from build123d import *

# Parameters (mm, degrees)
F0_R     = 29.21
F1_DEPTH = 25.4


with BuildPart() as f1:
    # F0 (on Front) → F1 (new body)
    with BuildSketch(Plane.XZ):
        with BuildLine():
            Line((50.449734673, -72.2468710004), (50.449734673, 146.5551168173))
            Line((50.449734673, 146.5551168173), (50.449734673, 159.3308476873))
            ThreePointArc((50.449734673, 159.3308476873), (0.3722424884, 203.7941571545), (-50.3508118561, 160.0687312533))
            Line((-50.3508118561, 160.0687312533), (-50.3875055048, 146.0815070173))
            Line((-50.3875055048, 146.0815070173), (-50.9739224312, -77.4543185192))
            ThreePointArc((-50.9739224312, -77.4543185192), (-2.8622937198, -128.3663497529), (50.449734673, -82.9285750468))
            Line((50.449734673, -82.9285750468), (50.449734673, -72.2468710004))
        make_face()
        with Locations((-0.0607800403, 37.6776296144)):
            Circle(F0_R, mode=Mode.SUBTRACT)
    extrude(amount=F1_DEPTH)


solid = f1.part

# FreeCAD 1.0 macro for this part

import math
import FreeCAD as App
import Part
import Sketcher

V = App.Vector
Q = App.Units.Quantity

doc = App.newDocument("Part")
body = doc.addObject("PartDesign::Body", "Body")

# Sketch on XZ plane
sketch1 = doc.addObject("Sketcher::SketchObject", "Sketch")
body.addObject(sketch1)
sketch1.AttachmentSupport = (doc.XZ_Plane, [""])
sketch1.MapMode = "FlatFace"
sketch1.addGeometry([
    Part.ArcOfCircle(Part.Circle(V(0, 153, 0), V(0, 0, 1), 51), math.radians(7), math.radians(172)),  # 0
    Part.LineSegment(V(-50, 160, 0), V(-50, 146, 0)),  # 1
    Part.LineSegment(V(-50, 146, 0), V(-51, -77, 0)),  # 2
    Part.ArcOfCircle(Part.Circle(V(0, -78, 0), V(0, 0, 1), 51), math.radians(180), math.radians(354)),  # 3
    Part.LineSegment(V(50, -83, 0), V(50, 159, 0)),  # 4
    Part.Circle(V(0, 38, 0), V(0, 0, 1), 29),  # 5
], False)
sketch1.addConstraint([
    Sketcher.Constraint("Coincident", 0, 2, 1, 1),
    Sketcher.Constraint("Coincident", 1, 2, 2, 1),
    Sketcher.Constraint("Tangent", 2, 2, 3, 1),
    Sketcher.Constraint("Coincident", 3, 2, 4, 1),
    Sketcher.Constraint("Coincident", 4, 2, 0, 1),
    Sketcher.Constraint("Vertical", 4),
    Sketcher.Constraint("Equal", 0, 3),
    Sketcher.Constraint("PointOnObject", 0, 3, -2),
    Sketcher.Constraint("Parallel", 1, 2),
    Sketcher.Constraint("Diameter", 5, Q("2.3 in")),
    Sketcher.Constraint("Radius", 0, 50.852537),
    Sketcher.Constraint("DistanceY", 5, 3, 0, 2, 122.391102),
    Sketcher.Constraint("DistanceY", 2, 2, 0, 3, 230.397301),
    Sketcher.Constraint("DistanceY", 4, 1, 4, 2, 242.259423),
    Sketcher.Constraint("DistanceX", 3, 3, -1, 1, 0.12156),
    Sketcher.Constraint("DistanceX", 5, 3, -1, 1, 0.06078),
    Sketcher.Constraint("DistanceY", -1, 1, 5, 3, 37.67763),
    Sketcher.Constraint("DistanceX", 0, 2, -1, 1, 50.350812),
    Sketcher.Constraint("DistanceY", 3, 3, 1, 2, 223.66923),
])
pad1 = doc.addObject("PartDesign::Pad", "Pad")
body.addObject(pad1)
pad1.Profile = sketch1
pad1.Length = Q("1 in")

doc.recompute()
